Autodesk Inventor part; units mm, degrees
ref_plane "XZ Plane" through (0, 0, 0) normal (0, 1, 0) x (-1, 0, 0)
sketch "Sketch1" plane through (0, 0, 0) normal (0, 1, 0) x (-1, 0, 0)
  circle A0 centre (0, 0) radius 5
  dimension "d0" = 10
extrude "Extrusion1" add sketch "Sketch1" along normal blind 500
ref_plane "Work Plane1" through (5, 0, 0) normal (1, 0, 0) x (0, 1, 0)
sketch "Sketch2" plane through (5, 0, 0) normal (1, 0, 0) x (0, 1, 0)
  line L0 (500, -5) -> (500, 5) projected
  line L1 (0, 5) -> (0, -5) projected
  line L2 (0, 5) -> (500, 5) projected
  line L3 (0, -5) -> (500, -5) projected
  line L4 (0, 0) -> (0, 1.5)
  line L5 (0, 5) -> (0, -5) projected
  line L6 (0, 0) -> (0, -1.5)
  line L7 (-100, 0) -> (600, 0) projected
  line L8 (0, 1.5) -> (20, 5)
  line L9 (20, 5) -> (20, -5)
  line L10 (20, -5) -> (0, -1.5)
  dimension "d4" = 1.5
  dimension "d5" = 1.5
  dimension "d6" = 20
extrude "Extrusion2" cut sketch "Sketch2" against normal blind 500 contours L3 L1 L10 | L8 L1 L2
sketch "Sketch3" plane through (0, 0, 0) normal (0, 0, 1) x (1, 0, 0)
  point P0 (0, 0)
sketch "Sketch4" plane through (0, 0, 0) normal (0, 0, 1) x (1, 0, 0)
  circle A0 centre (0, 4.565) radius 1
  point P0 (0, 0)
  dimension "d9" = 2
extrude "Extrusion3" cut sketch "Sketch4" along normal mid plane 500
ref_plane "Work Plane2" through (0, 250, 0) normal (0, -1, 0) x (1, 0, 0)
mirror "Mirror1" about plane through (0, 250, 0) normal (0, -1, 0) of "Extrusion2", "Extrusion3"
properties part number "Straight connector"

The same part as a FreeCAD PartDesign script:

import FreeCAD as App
import Part
import Sketcher

V = App.Vector

doc = App.newDocument("Part")
body = doc.addObject("PartDesign::Body", "Body")

# Sketch on XZ plane
sketch1 = body.newObject("Sketcher::SketchObject", "Sketch")
sketch1.AttachmentSupport = (doc.getObject("XZ_Plane"), [""])
sketch1.MapMode = "FlatFace"
sketch1.addGeometry(Part.Circle(V(0, 0, 0), V(0, 0, 1), 5), False)
sketch1.addConstraint([
    Sketcher.Constraint("Coincident", 0, 3, -1, 1),
    Sketcher.Constraint("Diameter", 0, 10.0),
])
pad1 = body.newObject("PartDesign::Pad", "Pad")
pad1.Profile = sketch1
pad1.Length = 500
pad1.Reversed = True

# Sketch on YZ plane
sketch2 = body.newObject("Sketcher::SketchObject", "Sketch001")
sketch2.AttachmentSupport = (doc.getObject("YZ_Plane"), [""])
sketch2.MapMode = "FlatFace"
sketch2.AttachmentOffset = App.Placement(V(0, 0, 5), App.Rotation())
sketch2.addGeometry([
    Part.LineSegment(V(0, -5, 0), V(20, -5, 0)),  # 0
    Part.LineSegment(V(20, -5, 0), V(0, -1.5, 0)),  # 1
    Part.LineSegment(V(0, -1.5, 0), V(0, -5, 0)),  # 2
    Part.LineSegment(V(0, 1.5, 0), V(20, 5, 0)),  # 3
    Part.LineSegment(V(20, 5, 0), V(0, 5, 0)),  # 4
    Part.LineSegment(V(0, 5, 0), V(0, 1.5, 0)),  # 5
], False)
sketch2.addConstraint([
    Sketcher.Constraint("Coincident", 0, 2, 1, 1),
    Sketcher.Constraint("Coincident", 1, 2, 2, 1),
    Sketcher.Constraint("Coincident", 2, 2, 0, 1),
    Sketcher.Constraint("Coincident", 3, 2, 4, 1),
    Sketcher.Constraint("Coincident", 4, 2, 5, 1),
    Sketcher.Constraint("Coincident", 5, 2, 3, 1),
    Sketcher.Constraint("Horizontal", 0),
    Sketcher.Constraint("Vertical", 2),
    Sketcher.Constraint("Horizontal", 4),
    Sketcher.Constraint("Vertical", 5),
    Sketcher.Constraint("Symmetric", 2, 2, 4, 2, -1, 1),
    Sketcher.Constraint("Symmetric", 1, 2, 5, 2, -1),
    Sketcher.Constraint("Vertical", 0, 2, 3, 2),
    Sketcher.Constraint("DistanceX", 0, 1, 0, 2, 20.0),
    Sketcher.Constraint("DistanceY", 1, 2, -1, 1, 1.5),
    Sketcher.Constraint("DistanceY", 2, 2, 2, 1, 3.5),
])
pocket1 = body.newObject("PartDesign::Pocket", "Pocket")
pocket1.Profile = sketch2
pocket1.Length = 500

# Sketch on XY plane
sketch3 = body.newObject("Sketcher::SketchObject", "Sketch002")
sketch3.AttachmentSupport = (doc.getObject("XY_Plane"), [""])
sketch3.MapMode = "FlatFace"
sketch3.addGeometry(Part.Circle(V(0, 4.6, 0), V(0, 0, 1), 1), False)
sketch3.addConstraint([
    Sketcher.Constraint("PointOnObject", 0, 3, -2),
    Sketcher.Constraint("Diameter", 0, 2.0),
    Sketcher.Constraint("DistanceY", -1, 1, 0, 3, 4.565),
])
pocket2 = body.newObject("PartDesign::Pocket", "Pocket001")
pocket2.Profile = sketch3
pocket2.Length = 500
pocket2.Midplane = True
doc.recompute()

datumplane = body.newObject("PartDesign::Plane", "DatumPlane")
datumplane.AttachmentSupport = (doc.getObject("XZ_Plane"), [""])
datumplane.MapMode = "FlatFace"
datumplane.AttachmentOffset = App.Placement(V(0, 0, -250), App.Rotation())
mirrored = body.newObject("PartDesign::Mirrored", "Mirrored")
mirrored.Originals = [pocket1, pocket2]
mirrored.MirrorPlane = (datumplane, [""])
body.Tip = mirrored

doc.recompute()
